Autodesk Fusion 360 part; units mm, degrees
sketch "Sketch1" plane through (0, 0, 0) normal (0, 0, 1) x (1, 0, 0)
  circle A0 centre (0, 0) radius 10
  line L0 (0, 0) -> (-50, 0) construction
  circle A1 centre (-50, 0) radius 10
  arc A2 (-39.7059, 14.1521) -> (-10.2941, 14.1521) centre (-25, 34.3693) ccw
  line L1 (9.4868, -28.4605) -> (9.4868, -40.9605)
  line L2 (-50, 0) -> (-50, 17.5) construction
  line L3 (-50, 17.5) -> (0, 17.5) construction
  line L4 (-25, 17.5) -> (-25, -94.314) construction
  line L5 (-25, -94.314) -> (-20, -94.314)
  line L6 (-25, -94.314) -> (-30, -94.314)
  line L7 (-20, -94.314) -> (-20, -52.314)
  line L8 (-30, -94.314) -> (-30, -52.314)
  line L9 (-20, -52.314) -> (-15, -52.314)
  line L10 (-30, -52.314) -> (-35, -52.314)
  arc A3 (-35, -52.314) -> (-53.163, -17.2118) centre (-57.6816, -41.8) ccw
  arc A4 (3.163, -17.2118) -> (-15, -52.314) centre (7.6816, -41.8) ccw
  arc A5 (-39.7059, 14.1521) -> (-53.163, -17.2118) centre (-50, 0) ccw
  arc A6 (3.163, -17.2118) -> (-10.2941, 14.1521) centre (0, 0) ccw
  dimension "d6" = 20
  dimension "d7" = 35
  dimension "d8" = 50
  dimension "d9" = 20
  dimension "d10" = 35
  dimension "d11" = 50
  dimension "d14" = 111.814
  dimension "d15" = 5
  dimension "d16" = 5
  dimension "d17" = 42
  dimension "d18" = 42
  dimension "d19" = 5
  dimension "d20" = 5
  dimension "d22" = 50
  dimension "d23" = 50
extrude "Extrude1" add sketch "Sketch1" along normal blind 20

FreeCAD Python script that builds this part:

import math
import FreeCAD as App
import Part
import Sketcher
from FreeCAD import Vector

doc = App.newDocument("Part")
params = doc.addObject("Spreadsheet::Sheet", "Params")
for row, (alias, value) in enumerate([
    ("sketch1_diameter", "20 mm"),
    ("sketch1_radius", "25 mm"),
    ("sketch1_radius2", "17.5 mm"),
    ("sketch1_width", "5 mm"),
    ("sketch1_height", "42 mm"),
    ("pad1_length", "20 mm"),
], start=1):
    params.set(f"A{row}", alias)
    params.set(f"B{row}", "=" + value)
    params.setAlias(f"B{row}", alias)

body = doc.addObject("PartDesign::Body", "Body")

# Sketch on XY plane
sketch1 = body.newObject("Sketcher::SketchObject", "Sketch")
sketch1.AttachmentSupport = (doc.getObject("XY_Plane"), [""])
sketch1.MapMode = "FlatFace"
sketch1.addGeometry([
    Part.ArcOfCircle(Part.Circle(Vector(-25, 34, 0), Vector(0, 0, 1), 25), math.radians(-126), math.radians(-54)),  # 0
    Part.ArcOfCircle(Part.Circle(Vector(-50, 0, 0), Vector(0, 0, 1), 18), math.radians(54), math.radians(260)),  # 1
    Part.ArcOfCircle(Part.Circle(Vector(-58, -42, 0), Vector(0, 0, 1), 25), math.radians(-25), math.radians(80)),  # 2
    Part.LineSegment(Vector(-35, -52, 0), Vector(-30, -52, 0)),  # 3
    Part.LineSegment(Vector(-30, -52, 0), Vector(-30, -94, 0)),  # 4
    Part.LineSegment(Vector(-30, -94, 0), Vector(-20, -94, 0)),  # 5
    Part.LineSegment(Vector(-20, -94, 0), Vector(-20, -52, 0)),  # 6
    Part.LineSegment(Vector(-20, -52, 0), Vector(-15, -52, 0)),  # 7
    Part.ArcOfCircle(Part.Circle(Vector(8, -42, 0), Vector(0, 0, 1), 25), math.radians(100), math.radians(205)),  # 8
    Part.ArcOfCircle(Part.Circle(Vector(0, 0, 0), Vector(0, 0, 1), 18), math.radians(-80), math.radians(126)),  # 9
    Part.Circle(Vector(-50, 0, 0), Vector(0, 0, 1), 10),  # 10
    Part.Circle(Vector(0, 0, 0), Vector(0, 0, 1), 10),  # 11
], False)
sketch1.addConstraint([
    Sketcher.Constraint("Tangent", 0, 1, 1, 1),
    Sketcher.Constraint("Tangent", 1, 2, 2, 2),
    Sketcher.Constraint("Coincident", 2, 1, 3, 1),
    Sketcher.Constraint("Coincident", 3, 2, 4, 1),
    Sketcher.Constraint("Coincident", 4, 2, 5, 1),
    Sketcher.Constraint("Coincident", 5, 2, 6, 1),
    Sketcher.Constraint("Coincident", 6, 2, 7, 1),
    Sketcher.Constraint("Coincident", 7, 2, 8, 2),
    Sketcher.Constraint("Tangent", 8, 1, 9, 1),
    Sketcher.Constraint("Tangent", 9, 2, 0, 2),
    Sketcher.Constraint("Horizontal", 3),
    Sketcher.Constraint("Vertical", 4),
    Sketcher.Constraint("Horizontal", 5),
    Sketcher.Constraint("Vertical", 6),
    Sketcher.Constraint("Horizontal", 7),
    Sketcher.Constraint("Coincident", 9, 3, -1, 1),
    Sketcher.Constraint("Coincident", 11, 3, -1, 1),
    Sketcher.Constraint("Coincident", 10, 3, 1, 3),
    Sketcher.Constraint("Equal", 0, 2),
    Sketcher.Constraint("Equal", 2, 8),
    Sketcher.Constraint("Equal", 1, 9),
    Sketcher.Constraint("Equal", 10, 11),
    Sketcher.Constraint("PointOnObject", 1, 3, -1),
    Sketcher.Constraint("Horizontal", 2, 3, 8, 3),
    Sketcher.Constraint("Horizontal", 3, 2, 6, 2),
    Sketcher.Constraint("Equal", 3, 7),
    Sketcher.Constraint("Diameter", 10, 20.0),
    Sketcher.Constraint("Radius", 0, 25.0),
    Sketcher.Constraint("Radius", 1, 17.5),
    Sketcher.Constraint("DistanceX", 3, 1, 3, 2, 5.0),
    Sketcher.Constraint("DistanceY", 4, 2, 4, 1, 42.0),
    Sketcher.Constraint("DistanceX", 1, 3, -1, 1, 50.0),
    Sketcher.Constraint("DistanceX", 2, 1, -1, 1, 35.0),
    Sketcher.Constraint("DistanceY", 2, 3, -1, 1, 41.8),
])
sketch1.setExpression("Constraints[26]", "Params.sketch1_diameter")
sketch1.setExpression("Constraints[27]", "Params.sketch1_radius")
sketch1.setExpression("Constraints[28]", "Params.sketch1_radius2")
sketch1.setExpression("Constraints[29]", "Params.sketch1_width")
sketch1.setExpression("Constraints[30]", "Params.sketch1_height")
pad1 = body.newObject("PartDesign::Pad", "Pad")
pad1.Profile = sketch1
pad1.setExpression("Length", "Params.pad1_length")

doc.recompute()
